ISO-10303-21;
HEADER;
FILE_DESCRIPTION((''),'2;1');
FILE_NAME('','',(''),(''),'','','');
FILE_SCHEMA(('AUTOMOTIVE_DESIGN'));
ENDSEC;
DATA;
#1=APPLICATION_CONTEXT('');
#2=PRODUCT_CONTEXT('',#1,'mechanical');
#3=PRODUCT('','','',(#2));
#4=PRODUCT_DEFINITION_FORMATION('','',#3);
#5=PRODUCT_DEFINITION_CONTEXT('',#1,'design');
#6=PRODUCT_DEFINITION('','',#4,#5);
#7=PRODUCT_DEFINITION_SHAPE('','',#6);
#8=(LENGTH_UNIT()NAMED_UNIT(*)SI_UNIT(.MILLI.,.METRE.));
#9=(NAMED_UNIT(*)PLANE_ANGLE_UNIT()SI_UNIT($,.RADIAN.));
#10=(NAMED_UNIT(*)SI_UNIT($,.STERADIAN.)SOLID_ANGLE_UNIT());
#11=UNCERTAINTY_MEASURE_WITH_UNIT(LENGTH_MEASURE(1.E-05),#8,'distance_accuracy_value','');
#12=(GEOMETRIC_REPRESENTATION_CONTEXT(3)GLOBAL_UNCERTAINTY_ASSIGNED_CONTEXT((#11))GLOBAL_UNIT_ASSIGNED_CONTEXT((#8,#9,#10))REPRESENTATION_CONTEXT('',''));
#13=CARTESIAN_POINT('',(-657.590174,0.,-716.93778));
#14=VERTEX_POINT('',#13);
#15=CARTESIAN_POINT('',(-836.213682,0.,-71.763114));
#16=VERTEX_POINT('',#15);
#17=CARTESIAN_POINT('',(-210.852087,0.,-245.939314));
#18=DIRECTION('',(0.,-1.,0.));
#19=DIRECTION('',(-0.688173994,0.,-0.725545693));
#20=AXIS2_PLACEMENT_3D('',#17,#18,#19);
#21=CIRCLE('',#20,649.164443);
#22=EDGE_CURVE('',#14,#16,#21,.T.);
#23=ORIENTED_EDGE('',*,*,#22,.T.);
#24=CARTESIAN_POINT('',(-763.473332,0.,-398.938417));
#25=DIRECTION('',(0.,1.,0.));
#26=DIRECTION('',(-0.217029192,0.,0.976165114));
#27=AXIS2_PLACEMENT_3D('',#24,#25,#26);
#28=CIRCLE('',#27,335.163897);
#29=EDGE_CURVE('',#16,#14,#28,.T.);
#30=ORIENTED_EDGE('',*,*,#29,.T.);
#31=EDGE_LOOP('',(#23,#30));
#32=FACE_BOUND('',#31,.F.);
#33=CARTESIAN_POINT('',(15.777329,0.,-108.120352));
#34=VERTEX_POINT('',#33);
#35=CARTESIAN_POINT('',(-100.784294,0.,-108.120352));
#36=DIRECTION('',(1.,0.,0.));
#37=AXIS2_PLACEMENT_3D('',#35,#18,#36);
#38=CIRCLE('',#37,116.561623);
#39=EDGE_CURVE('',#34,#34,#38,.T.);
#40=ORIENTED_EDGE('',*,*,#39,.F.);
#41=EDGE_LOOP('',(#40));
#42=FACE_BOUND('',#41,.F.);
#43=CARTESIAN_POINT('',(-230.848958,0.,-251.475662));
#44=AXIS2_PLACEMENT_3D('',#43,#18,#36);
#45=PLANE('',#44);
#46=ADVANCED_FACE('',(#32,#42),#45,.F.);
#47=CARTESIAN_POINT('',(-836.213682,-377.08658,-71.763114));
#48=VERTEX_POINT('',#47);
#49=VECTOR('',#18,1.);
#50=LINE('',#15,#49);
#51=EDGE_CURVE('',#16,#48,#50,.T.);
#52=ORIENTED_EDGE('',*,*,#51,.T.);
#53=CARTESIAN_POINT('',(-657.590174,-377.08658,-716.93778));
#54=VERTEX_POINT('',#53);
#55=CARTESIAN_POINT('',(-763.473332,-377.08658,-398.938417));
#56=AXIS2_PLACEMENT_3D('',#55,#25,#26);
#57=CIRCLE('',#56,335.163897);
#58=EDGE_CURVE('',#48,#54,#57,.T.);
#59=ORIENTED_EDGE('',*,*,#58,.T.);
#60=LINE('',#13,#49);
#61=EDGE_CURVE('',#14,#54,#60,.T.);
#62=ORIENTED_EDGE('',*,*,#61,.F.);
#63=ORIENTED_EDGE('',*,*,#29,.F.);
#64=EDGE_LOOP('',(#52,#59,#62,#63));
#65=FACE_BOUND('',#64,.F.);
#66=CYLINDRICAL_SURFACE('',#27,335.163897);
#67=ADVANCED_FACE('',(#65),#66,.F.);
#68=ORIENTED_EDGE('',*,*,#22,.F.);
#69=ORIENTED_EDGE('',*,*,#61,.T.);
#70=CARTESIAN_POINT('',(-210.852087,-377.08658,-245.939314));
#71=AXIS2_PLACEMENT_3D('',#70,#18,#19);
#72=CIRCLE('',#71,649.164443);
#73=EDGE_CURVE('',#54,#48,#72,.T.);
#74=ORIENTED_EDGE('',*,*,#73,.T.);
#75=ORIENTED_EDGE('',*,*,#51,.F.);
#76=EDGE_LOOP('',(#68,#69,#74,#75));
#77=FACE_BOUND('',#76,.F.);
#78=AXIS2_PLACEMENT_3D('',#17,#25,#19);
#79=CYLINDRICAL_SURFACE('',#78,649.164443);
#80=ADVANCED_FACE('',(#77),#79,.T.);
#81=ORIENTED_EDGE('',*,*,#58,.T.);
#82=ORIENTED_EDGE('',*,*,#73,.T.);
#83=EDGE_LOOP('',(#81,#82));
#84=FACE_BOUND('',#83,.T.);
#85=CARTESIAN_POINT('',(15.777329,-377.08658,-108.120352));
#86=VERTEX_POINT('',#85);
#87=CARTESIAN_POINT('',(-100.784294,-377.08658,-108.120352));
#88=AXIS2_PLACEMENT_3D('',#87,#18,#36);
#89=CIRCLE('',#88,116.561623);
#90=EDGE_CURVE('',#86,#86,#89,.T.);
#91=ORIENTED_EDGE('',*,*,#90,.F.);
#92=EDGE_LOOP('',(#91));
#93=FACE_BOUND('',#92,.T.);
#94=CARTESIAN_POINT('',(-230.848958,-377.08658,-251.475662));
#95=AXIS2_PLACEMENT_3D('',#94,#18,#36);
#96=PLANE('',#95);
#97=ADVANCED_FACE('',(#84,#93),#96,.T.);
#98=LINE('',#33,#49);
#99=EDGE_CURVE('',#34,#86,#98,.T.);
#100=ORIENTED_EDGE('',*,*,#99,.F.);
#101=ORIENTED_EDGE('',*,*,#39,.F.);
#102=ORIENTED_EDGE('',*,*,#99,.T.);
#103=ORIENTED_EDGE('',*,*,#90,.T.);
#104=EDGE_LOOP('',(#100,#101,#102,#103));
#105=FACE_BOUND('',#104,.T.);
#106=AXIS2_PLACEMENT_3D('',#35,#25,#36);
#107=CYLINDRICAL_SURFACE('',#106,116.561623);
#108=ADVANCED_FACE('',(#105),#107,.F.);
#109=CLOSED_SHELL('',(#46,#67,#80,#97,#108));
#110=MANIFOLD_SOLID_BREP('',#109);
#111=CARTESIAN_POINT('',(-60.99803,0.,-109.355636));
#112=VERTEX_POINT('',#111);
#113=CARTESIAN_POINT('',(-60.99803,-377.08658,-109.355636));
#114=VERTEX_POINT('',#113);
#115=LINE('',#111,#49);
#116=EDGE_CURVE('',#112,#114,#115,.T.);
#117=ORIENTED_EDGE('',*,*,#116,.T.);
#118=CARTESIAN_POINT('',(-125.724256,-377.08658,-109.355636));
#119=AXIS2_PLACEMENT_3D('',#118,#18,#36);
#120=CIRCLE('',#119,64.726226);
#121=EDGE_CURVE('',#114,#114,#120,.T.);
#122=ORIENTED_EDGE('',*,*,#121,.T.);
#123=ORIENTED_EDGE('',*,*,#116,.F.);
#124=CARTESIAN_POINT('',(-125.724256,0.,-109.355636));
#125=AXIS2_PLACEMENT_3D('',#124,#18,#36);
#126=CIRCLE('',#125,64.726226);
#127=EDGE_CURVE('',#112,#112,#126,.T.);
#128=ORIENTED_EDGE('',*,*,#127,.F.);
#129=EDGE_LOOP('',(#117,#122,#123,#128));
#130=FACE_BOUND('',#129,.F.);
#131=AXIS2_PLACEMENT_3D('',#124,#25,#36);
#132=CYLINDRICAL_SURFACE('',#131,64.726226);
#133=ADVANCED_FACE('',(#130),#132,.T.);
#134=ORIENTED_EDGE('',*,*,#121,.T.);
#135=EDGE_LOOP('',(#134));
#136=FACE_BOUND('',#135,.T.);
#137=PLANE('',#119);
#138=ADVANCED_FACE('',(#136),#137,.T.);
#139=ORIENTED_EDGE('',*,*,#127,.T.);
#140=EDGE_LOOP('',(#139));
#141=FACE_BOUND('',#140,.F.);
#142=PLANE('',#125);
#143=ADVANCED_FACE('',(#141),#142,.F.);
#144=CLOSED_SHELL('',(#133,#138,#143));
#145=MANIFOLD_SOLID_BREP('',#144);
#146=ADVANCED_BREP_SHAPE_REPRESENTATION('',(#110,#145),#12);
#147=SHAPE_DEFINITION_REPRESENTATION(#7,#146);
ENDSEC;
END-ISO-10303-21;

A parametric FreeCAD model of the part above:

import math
import FreeCAD as App
import Part
import Sketcher
Q = App.Units.Quantity

doc = App.newDocument("Part")
body = doc.addObject("PartDesign::Body", "Body")

# Sketch on XZ plane
sketch1 = body.newObject("Sketcher::SketchObject", "Sketch")
sketch1.AttachmentSupport = (doc.getObject("XZ_Plane"), [""])
sketch1.MapMode = "FlatFace"
sketch1.addGeometry(Part.Circle(App.Vector(-126, -109, 0), App.Vector(0, 0, 1), 65), False)
sketch1.addConstraint(Sketcher.Constraint("Diameter", 0, Q("129.452453 mm")))
sketch1.addConstraint(Sketcher.Constraint("DistanceX", 0, 3, -1, 1, Q("125.724256 mm")))
sketch1.addConstraint(Sketcher.Constraint("DistanceY", 0, 3, -1, 1, Q("109.355636 mm")))
pad1 = body.newObject("PartDesign::Pad", "Pad")
pad1.Profile = sketch1
pad1.Length = 377.08658
body2 = doc.addObject("PartDesign::Body", "Body001")

# Sketch on XZ plane
sketch2 = body2.newObject("Sketcher::SketchObject", "Sketch001")
sketch2.AttachmentSupport = (doc.getObject("XZ_Plane001"), [""])
sketch2.MapMode = "FlatFace"
sketch2.addGeometry(Part.ArcOfCircle(Part.Circle(App.Vector(-211, -246, 0), App.Vector(0, 0, 1), 649), math.radians(-133), math.radians(164)), False)
sketch2.addGeometry(Part.ArcOfCircle(Part.Circle(App.Vector(-763, -399, 0), App.Vector(0, 0, 1), 335), math.radians(-72), math.radians(103)), False)
sketch2.addGeometry(Part.Circle(App.Vector(-101, -108, 0), App.Vector(0, 0, 1), 117), False)
sketch2.addConstraint(Sketcher.Constraint("Coincident", 0, 1, 1, 1))
sketch2.addConstraint(Sketcher.Constraint("Coincident", 1, 2, 0, 2))
sketch2.addConstraint(Sketcher.Constraint("Diameter", 2, Q("233.123247 mm")))
sketch2.addConstraint(Sketcher.Constraint("Radius", 0, Q("649.164443 mm")))
sketch2.addConstraint(Sketcher.Constraint("Radius", 1, Q("335.163897 mm")))
sketch2.addConstraint(Sketcher.Constraint("DistanceY", 0, 3, 1, 2, Q("174.1762 mm")))
sketch2.addConstraint(Sketcher.Constraint("DistanceX", 1, 3, -1, 1, Q("763.473332 mm")))
sketch2.addConstraint(Sketcher.Constraint("DistanceX", 1, 2, -1, 1, Q("836.213682 mm")))
sketch2.addConstraint(Sketcher.Constraint("DistanceX", 0, 1, 2, 3, Q("556.80588 mm")))
sketch2.addConstraint(Sketcher.Constraint("DistanceY", 2, 3, 1, 2, Q("36.357238 mm")))
sketch2.addConstraint(Sketcher.Constraint("DistanceY", 0, 3, -1, 1, Q("245.939314 mm")))
pad2 = body2.newObject("PartDesign::Pad", "Pad001")
pad2.Profile = sketch2
pad2.Length = 377.08658

doc.recompute()
